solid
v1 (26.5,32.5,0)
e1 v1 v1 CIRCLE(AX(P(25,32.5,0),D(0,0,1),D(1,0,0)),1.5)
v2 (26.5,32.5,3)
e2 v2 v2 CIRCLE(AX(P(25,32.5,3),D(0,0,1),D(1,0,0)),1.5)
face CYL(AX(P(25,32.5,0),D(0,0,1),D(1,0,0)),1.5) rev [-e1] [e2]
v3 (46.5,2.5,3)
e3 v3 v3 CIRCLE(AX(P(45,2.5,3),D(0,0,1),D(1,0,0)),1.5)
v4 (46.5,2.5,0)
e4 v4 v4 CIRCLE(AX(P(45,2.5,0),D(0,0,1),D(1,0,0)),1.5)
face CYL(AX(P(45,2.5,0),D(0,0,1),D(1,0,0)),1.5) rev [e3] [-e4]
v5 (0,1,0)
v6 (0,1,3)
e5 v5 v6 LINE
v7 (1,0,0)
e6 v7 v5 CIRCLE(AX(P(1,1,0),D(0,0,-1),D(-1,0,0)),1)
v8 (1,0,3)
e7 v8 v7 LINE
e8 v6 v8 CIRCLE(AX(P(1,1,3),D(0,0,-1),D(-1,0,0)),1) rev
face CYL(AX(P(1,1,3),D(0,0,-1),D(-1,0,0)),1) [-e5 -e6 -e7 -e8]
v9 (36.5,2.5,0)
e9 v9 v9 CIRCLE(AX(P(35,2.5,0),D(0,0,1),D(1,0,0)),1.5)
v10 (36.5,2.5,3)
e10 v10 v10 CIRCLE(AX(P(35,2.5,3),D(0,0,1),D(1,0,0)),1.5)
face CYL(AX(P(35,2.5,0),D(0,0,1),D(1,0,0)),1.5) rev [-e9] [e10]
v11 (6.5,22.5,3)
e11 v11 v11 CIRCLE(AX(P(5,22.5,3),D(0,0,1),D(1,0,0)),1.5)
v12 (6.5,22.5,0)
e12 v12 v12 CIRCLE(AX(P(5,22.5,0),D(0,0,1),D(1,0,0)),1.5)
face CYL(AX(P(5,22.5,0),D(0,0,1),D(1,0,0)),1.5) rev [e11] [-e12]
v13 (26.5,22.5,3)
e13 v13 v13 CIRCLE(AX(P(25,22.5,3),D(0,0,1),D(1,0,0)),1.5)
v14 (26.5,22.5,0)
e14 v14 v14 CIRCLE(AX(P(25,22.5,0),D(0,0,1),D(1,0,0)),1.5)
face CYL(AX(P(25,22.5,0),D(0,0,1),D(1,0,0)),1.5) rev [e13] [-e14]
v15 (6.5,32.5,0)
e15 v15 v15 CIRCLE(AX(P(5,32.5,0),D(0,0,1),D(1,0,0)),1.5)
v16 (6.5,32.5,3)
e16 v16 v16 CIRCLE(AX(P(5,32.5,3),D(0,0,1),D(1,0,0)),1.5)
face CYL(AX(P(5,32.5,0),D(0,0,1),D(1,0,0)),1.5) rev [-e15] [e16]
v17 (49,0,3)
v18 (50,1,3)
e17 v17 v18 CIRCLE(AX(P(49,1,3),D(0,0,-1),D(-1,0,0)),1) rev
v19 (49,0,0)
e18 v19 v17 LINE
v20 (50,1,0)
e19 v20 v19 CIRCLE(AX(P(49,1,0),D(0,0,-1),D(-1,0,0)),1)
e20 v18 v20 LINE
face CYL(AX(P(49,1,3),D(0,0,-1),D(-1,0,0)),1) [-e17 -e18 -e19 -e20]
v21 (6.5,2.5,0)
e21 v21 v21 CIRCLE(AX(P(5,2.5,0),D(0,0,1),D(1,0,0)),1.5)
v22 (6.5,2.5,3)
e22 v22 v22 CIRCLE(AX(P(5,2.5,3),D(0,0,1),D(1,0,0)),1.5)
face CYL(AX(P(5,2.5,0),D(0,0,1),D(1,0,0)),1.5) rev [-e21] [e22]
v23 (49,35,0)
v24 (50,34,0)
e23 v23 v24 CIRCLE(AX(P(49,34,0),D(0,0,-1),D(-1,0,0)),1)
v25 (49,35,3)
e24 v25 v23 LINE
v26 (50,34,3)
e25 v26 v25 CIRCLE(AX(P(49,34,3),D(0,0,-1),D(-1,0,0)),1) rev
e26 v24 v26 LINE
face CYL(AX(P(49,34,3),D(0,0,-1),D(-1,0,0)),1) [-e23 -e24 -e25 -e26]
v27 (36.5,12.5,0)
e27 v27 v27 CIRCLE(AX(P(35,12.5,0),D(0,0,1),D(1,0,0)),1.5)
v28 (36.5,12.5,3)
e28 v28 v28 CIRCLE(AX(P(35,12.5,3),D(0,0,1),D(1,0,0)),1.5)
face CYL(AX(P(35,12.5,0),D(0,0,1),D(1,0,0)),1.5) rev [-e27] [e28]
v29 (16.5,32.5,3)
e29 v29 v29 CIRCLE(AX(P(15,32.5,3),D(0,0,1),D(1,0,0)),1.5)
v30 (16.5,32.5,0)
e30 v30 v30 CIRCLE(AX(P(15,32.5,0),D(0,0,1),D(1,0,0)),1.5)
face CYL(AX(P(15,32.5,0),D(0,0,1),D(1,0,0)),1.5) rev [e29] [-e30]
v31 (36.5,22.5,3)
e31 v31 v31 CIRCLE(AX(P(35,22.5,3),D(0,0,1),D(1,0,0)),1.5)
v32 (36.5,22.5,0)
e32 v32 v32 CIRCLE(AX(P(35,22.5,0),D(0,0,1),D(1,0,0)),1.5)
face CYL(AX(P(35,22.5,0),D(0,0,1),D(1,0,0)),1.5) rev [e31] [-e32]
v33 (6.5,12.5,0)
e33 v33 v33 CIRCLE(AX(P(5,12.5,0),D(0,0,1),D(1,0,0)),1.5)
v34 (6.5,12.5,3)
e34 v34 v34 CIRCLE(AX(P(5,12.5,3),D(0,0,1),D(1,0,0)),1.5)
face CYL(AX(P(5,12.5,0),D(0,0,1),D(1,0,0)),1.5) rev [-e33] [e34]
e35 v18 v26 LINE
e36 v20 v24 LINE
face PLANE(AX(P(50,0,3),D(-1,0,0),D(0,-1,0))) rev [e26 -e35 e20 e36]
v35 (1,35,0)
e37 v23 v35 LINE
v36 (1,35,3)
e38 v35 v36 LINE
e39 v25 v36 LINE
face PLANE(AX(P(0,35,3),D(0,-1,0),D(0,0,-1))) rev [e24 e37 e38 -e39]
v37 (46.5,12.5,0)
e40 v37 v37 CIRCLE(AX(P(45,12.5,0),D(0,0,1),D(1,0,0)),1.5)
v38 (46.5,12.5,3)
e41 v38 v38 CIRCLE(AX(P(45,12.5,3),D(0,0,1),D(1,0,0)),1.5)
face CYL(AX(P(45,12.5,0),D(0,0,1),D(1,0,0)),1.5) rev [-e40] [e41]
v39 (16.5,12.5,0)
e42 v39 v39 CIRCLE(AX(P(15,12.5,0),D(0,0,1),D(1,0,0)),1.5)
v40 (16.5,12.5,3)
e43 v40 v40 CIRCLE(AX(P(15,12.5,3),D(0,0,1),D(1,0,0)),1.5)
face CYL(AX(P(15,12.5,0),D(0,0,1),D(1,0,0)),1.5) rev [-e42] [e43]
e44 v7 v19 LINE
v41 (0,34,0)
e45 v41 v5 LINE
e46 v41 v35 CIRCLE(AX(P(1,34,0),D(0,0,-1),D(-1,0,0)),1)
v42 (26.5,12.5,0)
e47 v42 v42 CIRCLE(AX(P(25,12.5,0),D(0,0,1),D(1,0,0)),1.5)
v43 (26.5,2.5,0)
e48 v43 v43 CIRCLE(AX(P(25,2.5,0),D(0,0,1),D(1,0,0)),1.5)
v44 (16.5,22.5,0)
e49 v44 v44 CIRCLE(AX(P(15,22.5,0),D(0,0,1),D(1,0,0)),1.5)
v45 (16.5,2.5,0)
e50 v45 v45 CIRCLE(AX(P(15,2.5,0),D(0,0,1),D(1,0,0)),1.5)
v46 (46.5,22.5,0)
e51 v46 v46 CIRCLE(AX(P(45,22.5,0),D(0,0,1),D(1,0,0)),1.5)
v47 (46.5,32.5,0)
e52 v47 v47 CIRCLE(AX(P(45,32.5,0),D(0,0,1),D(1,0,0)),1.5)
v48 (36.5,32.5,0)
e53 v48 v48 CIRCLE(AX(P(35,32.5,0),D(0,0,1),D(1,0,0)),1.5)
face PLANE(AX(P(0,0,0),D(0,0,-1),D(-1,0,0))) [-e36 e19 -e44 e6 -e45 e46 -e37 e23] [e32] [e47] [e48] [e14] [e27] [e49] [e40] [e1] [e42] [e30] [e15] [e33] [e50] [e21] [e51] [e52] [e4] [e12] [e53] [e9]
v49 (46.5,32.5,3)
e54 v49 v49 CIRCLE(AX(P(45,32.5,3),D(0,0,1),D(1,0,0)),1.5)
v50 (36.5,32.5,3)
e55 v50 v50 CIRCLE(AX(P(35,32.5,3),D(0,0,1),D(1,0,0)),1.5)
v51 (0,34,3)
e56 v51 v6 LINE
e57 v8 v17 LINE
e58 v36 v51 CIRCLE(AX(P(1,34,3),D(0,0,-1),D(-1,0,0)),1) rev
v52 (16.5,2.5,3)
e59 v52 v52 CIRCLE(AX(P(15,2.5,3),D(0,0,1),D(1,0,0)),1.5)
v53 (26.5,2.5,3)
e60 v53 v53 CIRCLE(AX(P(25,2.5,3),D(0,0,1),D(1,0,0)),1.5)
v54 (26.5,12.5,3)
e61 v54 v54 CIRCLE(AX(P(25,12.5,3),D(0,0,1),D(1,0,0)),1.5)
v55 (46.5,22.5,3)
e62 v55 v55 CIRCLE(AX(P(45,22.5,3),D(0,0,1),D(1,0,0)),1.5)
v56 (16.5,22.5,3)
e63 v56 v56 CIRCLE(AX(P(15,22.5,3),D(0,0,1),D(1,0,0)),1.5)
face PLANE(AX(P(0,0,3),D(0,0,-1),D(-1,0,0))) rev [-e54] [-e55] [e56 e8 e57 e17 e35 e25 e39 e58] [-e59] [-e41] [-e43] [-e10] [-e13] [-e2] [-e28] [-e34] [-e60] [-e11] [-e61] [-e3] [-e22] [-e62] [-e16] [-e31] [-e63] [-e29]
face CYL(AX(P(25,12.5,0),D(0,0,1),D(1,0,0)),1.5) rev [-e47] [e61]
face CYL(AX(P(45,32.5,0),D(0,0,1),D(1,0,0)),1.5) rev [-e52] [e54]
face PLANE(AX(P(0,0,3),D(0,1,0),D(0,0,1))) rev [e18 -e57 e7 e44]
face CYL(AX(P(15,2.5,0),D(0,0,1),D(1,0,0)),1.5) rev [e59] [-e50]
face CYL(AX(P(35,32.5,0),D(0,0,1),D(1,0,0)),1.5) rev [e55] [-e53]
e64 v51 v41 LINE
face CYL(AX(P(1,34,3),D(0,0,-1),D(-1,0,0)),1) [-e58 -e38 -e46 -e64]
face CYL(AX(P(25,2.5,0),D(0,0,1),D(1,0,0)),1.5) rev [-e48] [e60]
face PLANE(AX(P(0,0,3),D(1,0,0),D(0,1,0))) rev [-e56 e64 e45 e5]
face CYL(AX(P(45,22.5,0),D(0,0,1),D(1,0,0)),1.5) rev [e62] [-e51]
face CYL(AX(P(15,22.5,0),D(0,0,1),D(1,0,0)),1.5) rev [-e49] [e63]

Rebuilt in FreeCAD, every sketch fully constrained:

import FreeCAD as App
import Part
import Sketcher


def edges_at(feature, points):
    """Names of the edges that pass closest to the given points."""
    edges = feature.Shape.Edges
    near = lambda p: min(range(len(edges)), key=lambda i: edges[i].distToShape(Part.Vertex(*p))[0])
    return sorted({f"Edge{near(p) + 1}" for p in points})


def add_polygon(sketch, points):
    """Adds a closed chain of lines whose ends are joined by coincident constraints."""
    first, n = sketch.GeometryCount, len(points)
    for a, b in zip(points, points[1:] + points[:1]):
        sketch.addGeometry(Part.LineSegment(App.Vector(*a, 0), App.Vector(*b, 0)), False)
    for i in range(n):
        sketch.addConstraint(Sketcher.Constraint("Coincident", first + i, 2, first + (i + 1) % n, 1))

doc = App.newDocument("Part")
body = doc.addObject("PartDesign::Body", "Body")

# Sketch on XY plane
sketch1 = body.newObject("Sketcher::SketchObject", "Sketch")
sketch1.AttachmentSupport = (doc.getObject("XY_Plane"), [""])
sketch1.MapMode = "FlatFace"
add_polygon(sketch1, [(0, 35), (0, 0), (50, 0), (50, 35)])  # lines 0-3
sketch1.addConstraint([
    Sketcher.Constraint("Vertical", 0),
    Sketcher.Constraint("Horizontal", 1),
    Sketcher.Constraint("Vertical", 2),
    Sketcher.Constraint("Horizontal", 3),
    Sketcher.Constraint("Coincident", 0, 2, -1, 1),
    Sketcher.Constraint("DistanceX", 1, 1, 1, 2, 50.0),
    Sketcher.Constraint("DistanceY", 0, 2, 0, 1, 35.0),
])
pad1 = body.newObject("PartDesign::Pad", "Pad")
pad1.Profile = sketch1
pad1.Length = 3

# Sketch on XY plane
sketch2 = body.newObject("Sketcher::SketchObject", "Sketch001")
sketch2.AttachmentSupport = (doc.getObject("XY_Plane"), [""])
sketch2.MapMode = "FlatFace"
sketch2.AttachmentOffset = App.Placement(App.Vector(0, 0, 3), App.Rotation())
sketch2.addGeometry([
    Part.Circle(App.Vector(5, 32.5, 0), App.Vector(0, 0, 1), 1.5),  # 0
    Part.Circle(App.Vector(15, 32.5, 0), App.Vector(0, 0, 1), 1.5),  # 1
    Part.Circle(App.Vector(25, 32.5, 0), App.Vector(0, 0, 1), 1.5),  # 2
    Part.Circle(App.Vector(35, 32.5, 0), App.Vector(0, 0, 1), 1.5),  # 3
    Part.Circle(App.Vector(45, 32.5, 0), App.Vector(0, 0, 1), 1.5),  # 4
    Part.Circle(App.Vector(15, 22.5, 0), App.Vector(0, 0, 1), 1.5),  # 5
    Part.Circle(App.Vector(25, 22.5, 0), App.Vector(0, 0, 1), 1.5),  # 6
    Part.Circle(App.Vector(35, 22.5, 0), App.Vector(0, 0, 1), 1.5),  # 7
    Part.Circle(App.Vector(45, 22.5, 0), App.Vector(0, 0, 1), 1.5),  # 8
    Part.Circle(App.Vector(15, 12.5, 0), App.Vector(0, 0, 1), 1.5),  # 9
    Part.Circle(App.Vector(25, 12.5, 0), App.Vector(0, 0, 1), 1.5),  # 10
    Part.Circle(App.Vector(35, 12.5, 0), App.Vector(0, 0, 1), 1.5),  # 11
    Part.Circle(App.Vector(45, 12.5, 0), App.Vector(0, 0, 1), 1.5),  # 12
    Part.Circle(App.Vector(15, 2.5, 0), App.Vector(0, 0, 1), 1.5),  # 13
    Part.Circle(App.Vector(25, 2.5, 0), App.Vector(0, 0, 1), 1.5),  # 14
    Part.Circle(App.Vector(35, 2.5, 0), App.Vector(0, 0, 1), 1.5),  # 15
    Part.Circle(App.Vector(45, 2.5, 0), App.Vector(0, 0, 1), 1.5),  # 16
    Part.Circle(App.Vector(5, 22.5, 0), App.Vector(0, 0, 1), 1.5),  # 17
    Part.Circle(App.Vector(5, 12.5, 0), App.Vector(0, 0, 1), 1.5),  # 18
    Part.Circle(App.Vector(5, 2.5, 0), App.Vector(0, 0, 1), 1.5),  # 19
], False)
sketch2.addConstraint([
    Sketcher.Constraint("Equal", 0, 1),
    Sketcher.Constraint("Equal", 1, 2),
    Sketcher.Constraint("Equal", 2, 3),
    Sketcher.Constraint("Equal", 3, 4),
    Sketcher.Constraint("Equal", 4, 5),
    Sketcher.Constraint("Equal", 5, 6),
    Sketcher.Constraint("Equal", 6, 7),
    Sketcher.Constraint("Equal", 7, 8),
    Sketcher.Constraint("Equal", 8, 9),
    Sketcher.Constraint("Equal", 9, 10),
    Sketcher.Constraint("Equal", 10, 11),
    Sketcher.Constraint("Equal", 11, 12),
    Sketcher.Constraint("Equal", 12, 13),
    Sketcher.Constraint("Equal", 13, 14),
    Sketcher.Constraint("Equal", 14, 15),
    Sketcher.Constraint("Equal", 15, 16),
    Sketcher.Constraint("Equal", 16, 17),
    Sketcher.Constraint("Equal", 17, 18),
    Sketcher.Constraint("Equal", 18, 19),
    Sketcher.Constraint("Horizontal", 0, 3, 1, 3),
    Sketcher.Constraint("Horizontal", 1, 3, 2, 3),
    Sketcher.Constraint("Horizontal", 2, 3, 3, 3),
    Sketcher.Constraint("Horizontal", 3, 3, 4, 3),
    Sketcher.Constraint("Horizontal", 5, 3, 6, 3),
    Sketcher.Constraint("Horizontal", 6, 3, 7, 3),
    Sketcher.Constraint("Horizontal", 7, 3, 8, 3),
    Sketcher.Constraint("Horizontal", 9, 3, 10, 3),
    Sketcher.Constraint("Horizontal", 10, 3, 11, 3),
    Sketcher.Constraint("Horizontal", 11, 3, 12, 3),
    Sketcher.Constraint("Horizontal", 13, 3, 14, 3),
    Sketcher.Constraint("Horizontal", 14, 3, 15, 3),
    Sketcher.Constraint("Horizontal", 15, 3, 16, 3),
    Sketcher.Constraint("Horizontal", 8, 3, 17, 3),
    Sketcher.Constraint("Horizontal", 12, 3, 18, 3),
    Sketcher.Constraint("Horizontal", 16, 3, 19, 3),
    Sketcher.Constraint("Vertical", 1, 3, 5, 3),
    Sketcher.Constraint("Vertical", 2, 3, 6, 3),
    Sketcher.Constraint("Vertical", 3, 3, 7, 3),
    Sketcher.Constraint("Vertical", 4, 3, 8, 3),
    Sketcher.Constraint("Vertical", 5, 3, 9, 3),
    Sketcher.Constraint("Vertical", 6, 3, 10, 3),
    Sketcher.Constraint("Vertical", 7, 3, 11, 3),
    Sketcher.Constraint("Vertical", 8, 3, 12, 3),
    Sketcher.Constraint("Vertical", 9, 3, 13, 3),
    Sketcher.Constraint("Vertical", 10, 3, 14, 3),
    Sketcher.Constraint("Vertical", 11, 3, 15, 3),
    Sketcher.Constraint("Vertical", 12, 3, 16, 3),
    Sketcher.Constraint("Vertical", 0, 3, 17, 3),
    Sketcher.Constraint("Vertical", 17, 3, 18, 3),
    Sketcher.Constraint("Vertical", 18, 3, 19, 3),
    Sketcher.Constraint("Diameter", 0, 3.0),
    Sketcher.Constraint("DistanceX", -1, 1, 0, 3, 5.0),
    Sketcher.Constraint("DistanceX", -1, 1, 1, 3, 15.0),
    Sketcher.Constraint("DistanceX", -1, 1, 2, 3, 25.0),
    Sketcher.Constraint("DistanceX", -1, 1, 3, 3, 35.0),
    Sketcher.Constraint("DistanceX", -1, 1, 4, 3, 45.0),
    Sketcher.Constraint("DistanceY", 5, 3, 1, 3, 10.0),
    Sketcher.Constraint("DistanceY", 9, 3, 5, 3, 10.0),
    Sketcher.Constraint("DistanceY", 13, 3, 9, 3, 10.0),
    Sketcher.Constraint("DistanceY", -1, 1, 0, 3, 32.5),
])
pocket1 = body.newObject("PartDesign::Pocket", "Pocket")
pocket1.Profile = sketch2
pocket1.Length = 3
doc.recompute()

fillet = body.newObject("PartDesign::Fillet", "Fillet")
fillet.Base = (pocket1, edges_at(pocket1, [
    (0, 35, 1.5),
    (50, 35, 1.5),
    (50, 0, 1.5),
    (0, 0, 1.5),
]))
fillet.Radius = 1

doc.recompute()
